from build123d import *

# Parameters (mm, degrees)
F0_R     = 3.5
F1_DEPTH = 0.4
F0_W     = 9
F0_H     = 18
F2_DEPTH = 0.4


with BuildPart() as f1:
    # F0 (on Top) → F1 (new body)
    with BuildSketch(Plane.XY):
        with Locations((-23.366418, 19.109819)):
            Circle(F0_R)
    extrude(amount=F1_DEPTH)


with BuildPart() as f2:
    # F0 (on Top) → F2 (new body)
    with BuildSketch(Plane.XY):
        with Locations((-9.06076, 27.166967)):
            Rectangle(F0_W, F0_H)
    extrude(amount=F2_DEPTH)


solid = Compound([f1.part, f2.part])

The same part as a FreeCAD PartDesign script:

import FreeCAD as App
import Part
import Sketcher


def add_polygon(sketch, points):
    """Adds a closed chain of lines whose ends are joined by coincident constraints."""
    first, n = sketch.GeometryCount, len(points)
    for a, b in zip(points, points[1:] + points[:1]):
        sketch.addGeometry(Part.LineSegment(App.Vector(*a, 0), App.Vector(*b, 0)), False)
    for i in range(n):
        sketch.addConstraint(Sketcher.Constraint("Coincident", first + i, 2, first + (i + 1) % n, 1))

doc = App.newDocument("Part")
body = doc.addObject("PartDesign::Body", "Body")

# Sketch on XY plane
sketch1 = body.newObject("Sketcher::SketchObject", "Sketch")
sketch1.AttachmentSupport = (doc.getObject("XY_Plane"), [""])
sketch1.MapMode = "FlatFace"
sketch1.addGeometry(Part.Circle(App.Vector(-23.4, 19.1, 0), App.Vector(0, 0, 1), 3.5), False)
sketch1.addConstraint([
    Sketcher.Constraint("Diameter", 0, 7.0),
    Sketcher.Constraint("DistanceY", -1, 1, 0, 3, 19.109819),
    Sketcher.Constraint("DistanceX", 0, 3, -1, 1, 23.366418),
])
pad1 = body.newObject("PartDesign::Pad", "Pad")
pad1.Profile = sketch1
pad1.Length = 0.4
body2 = doc.addObject("PartDesign::Body", "Body001")

# Sketch on XY plane
sketch2 = body2.newObject("Sketcher::SketchObject", "Sketch001")
sketch2.AttachmentSupport = (doc.getObject("XY_Plane001"), [""])
sketch2.MapMode = "FlatFace"
add_polygon(sketch2, [(-14, 36), (-14, 18), (-5, 18), (-5, 36)])  # lines 0-3
sketch2.addConstraint([
    Sketcher.Constraint("Vertical", 0),
    Sketcher.Constraint("Horizontal", 1),
    Sketcher.Constraint("Vertical", 2),
    Sketcher.Constraint("Horizontal", 3),
    Sketcher.Constraint("DistanceX", 1, 1, 1, 2, 9.0),
    Sketcher.Constraint("DistanceY", 0, 2, 0, 1, 18.0),
    Sketcher.Constraint("DistanceX", 0, 2, -1, 1, 13.56076),
    Sketcher.Constraint("DistanceY", -1, 1, 0, 2, 18.166967),
])
pad2 = body2.newObject("PartDesign::Pad", "Pad001")
pad2.Profile = sketch2
pad2.Length = 0.4

doc.recompute()
